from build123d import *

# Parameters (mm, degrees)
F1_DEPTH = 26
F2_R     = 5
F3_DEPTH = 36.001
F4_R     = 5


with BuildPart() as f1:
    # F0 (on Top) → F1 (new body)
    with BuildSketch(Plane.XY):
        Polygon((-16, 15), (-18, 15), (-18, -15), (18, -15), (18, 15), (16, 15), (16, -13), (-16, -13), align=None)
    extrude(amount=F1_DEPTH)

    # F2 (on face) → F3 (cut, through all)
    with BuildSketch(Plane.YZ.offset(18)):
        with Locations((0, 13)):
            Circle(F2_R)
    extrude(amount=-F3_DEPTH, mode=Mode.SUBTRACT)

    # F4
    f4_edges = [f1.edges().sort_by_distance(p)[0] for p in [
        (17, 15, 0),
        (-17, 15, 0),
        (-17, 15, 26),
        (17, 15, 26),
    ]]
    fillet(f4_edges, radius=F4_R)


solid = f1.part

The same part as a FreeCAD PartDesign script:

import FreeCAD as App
import Part
import Sketcher
Q = App.Units.Quantity


def edges_at(feature, points):
    """Names of the edges that pass closest to the given points."""
    edges = feature.Shape.Edges
    near = lambda p: min(range(len(edges)), key=lambda i: edges[i].distToShape(Part.Vertex(*p))[0])
    return sorted({f"Edge{near(p) + 1}" for p in points})


def add_polygon(sketch, points):
    """Adds a closed chain of lines whose ends are joined by coincident constraints."""
    first, n = sketch.GeometryCount, len(points)
    for a, b in zip(points, points[1:] + points[:1]):
        sketch.addGeometry(Part.LineSegment(App.Vector(*a, 0), App.Vector(*b, 0)), False)
    for i in range(n):
        sketch.addConstraint(Sketcher.Constraint("Coincident", first + i, 2, first + (i + 1) % n, 1))

doc = App.newDocument("Part")
body = doc.addObject("PartDesign::Body", "Body")

sketch1 = body.newObject("Sketcher::SketchObject", "Sketch")
sketch1.AttachmentSupport = (doc.getObject("XY_Plane"), [""])
sketch1.MapMode = "FlatFace"
add_polygon(sketch1, [(-16, 15), (-18, 15), (-18, -15), (18, -15), (18, 15), (16, 15), (16, -13), (-16, -13)])
sketch1.addConstraint([
    Sketcher.Constraint("Horizontal", 0),
    Sketcher.Constraint("Vertical", 1),
    Sketcher.Constraint("Horizontal", 2),
    Sketcher.Constraint("Vertical", 3),
    Sketcher.Constraint("Horizontal", 4),
    Sketcher.Constraint("Vertical", 5),
    Sketcher.Constraint("Horizontal", 6),
    Sketcher.Constraint("Vertical", 7),
    Sketcher.Constraint("Symmetric", 0, 2, 2, 2, -1, 1),
    Sketcher.Constraint("Symmetric", 4, 2, 7, 2, -2),
    Sketcher.Constraint("DistanceX", 0, 2, 0, 1, Q("2 mm")),
    Sketcher.Constraint("DistanceX", 2, 1, 2, 2, Q("36 mm")),
    Sketcher.Constraint("DistanceY", 1, 2, 1, 1, Q("30 mm")),
    Sketcher.Constraint("DistanceY", 5, 2, 5, 1, Q("28 mm")),
])
pad1 = body.newObject("PartDesign::Pad", "Pad")
pad1.Profile = sketch1
pad1.Length = 26

sketch2 = body.newObject("Sketcher::SketchObject", "Sketch001")
sketch2.AttachmentSupport = (doc.getObject("YZ_Plane"), [""])
sketch2.MapMode = "FlatFace"
sketch2.AttachmentOffset = App.Placement(App.Vector(0, 0, 18), App.Rotation())
sketch2.addGeometry(Part.Circle(App.Vector(0, 13, 0), App.Vector(0, 0, 1), 5), False)
sketch2.addConstraint([
    Sketcher.Constraint("PointOnObject", 0, 3, -2),
    Sketcher.Constraint("Diameter", 0, Q("10 mm")),
    Sketcher.Constraint("DistanceY", -1, 1, 0, 3, Q("13 mm")),
])
pocket1 = body.newObject("PartDesign::Pocket", "Pocket")
pocket1.Profile = sketch2
pocket1.Type = "ThroughAll"
doc.recompute()

fillet = body.newObject("PartDesign::Fillet", "Fillet")
fillet.Base = (pocket1, edges_at(pocket1, [
    (17, 15, 0),
    (-17, 15, 0),
    (-17, 15, 26),
    (17, 15, 26),
]))
fillet.Radius = 5

doc.recompute()
